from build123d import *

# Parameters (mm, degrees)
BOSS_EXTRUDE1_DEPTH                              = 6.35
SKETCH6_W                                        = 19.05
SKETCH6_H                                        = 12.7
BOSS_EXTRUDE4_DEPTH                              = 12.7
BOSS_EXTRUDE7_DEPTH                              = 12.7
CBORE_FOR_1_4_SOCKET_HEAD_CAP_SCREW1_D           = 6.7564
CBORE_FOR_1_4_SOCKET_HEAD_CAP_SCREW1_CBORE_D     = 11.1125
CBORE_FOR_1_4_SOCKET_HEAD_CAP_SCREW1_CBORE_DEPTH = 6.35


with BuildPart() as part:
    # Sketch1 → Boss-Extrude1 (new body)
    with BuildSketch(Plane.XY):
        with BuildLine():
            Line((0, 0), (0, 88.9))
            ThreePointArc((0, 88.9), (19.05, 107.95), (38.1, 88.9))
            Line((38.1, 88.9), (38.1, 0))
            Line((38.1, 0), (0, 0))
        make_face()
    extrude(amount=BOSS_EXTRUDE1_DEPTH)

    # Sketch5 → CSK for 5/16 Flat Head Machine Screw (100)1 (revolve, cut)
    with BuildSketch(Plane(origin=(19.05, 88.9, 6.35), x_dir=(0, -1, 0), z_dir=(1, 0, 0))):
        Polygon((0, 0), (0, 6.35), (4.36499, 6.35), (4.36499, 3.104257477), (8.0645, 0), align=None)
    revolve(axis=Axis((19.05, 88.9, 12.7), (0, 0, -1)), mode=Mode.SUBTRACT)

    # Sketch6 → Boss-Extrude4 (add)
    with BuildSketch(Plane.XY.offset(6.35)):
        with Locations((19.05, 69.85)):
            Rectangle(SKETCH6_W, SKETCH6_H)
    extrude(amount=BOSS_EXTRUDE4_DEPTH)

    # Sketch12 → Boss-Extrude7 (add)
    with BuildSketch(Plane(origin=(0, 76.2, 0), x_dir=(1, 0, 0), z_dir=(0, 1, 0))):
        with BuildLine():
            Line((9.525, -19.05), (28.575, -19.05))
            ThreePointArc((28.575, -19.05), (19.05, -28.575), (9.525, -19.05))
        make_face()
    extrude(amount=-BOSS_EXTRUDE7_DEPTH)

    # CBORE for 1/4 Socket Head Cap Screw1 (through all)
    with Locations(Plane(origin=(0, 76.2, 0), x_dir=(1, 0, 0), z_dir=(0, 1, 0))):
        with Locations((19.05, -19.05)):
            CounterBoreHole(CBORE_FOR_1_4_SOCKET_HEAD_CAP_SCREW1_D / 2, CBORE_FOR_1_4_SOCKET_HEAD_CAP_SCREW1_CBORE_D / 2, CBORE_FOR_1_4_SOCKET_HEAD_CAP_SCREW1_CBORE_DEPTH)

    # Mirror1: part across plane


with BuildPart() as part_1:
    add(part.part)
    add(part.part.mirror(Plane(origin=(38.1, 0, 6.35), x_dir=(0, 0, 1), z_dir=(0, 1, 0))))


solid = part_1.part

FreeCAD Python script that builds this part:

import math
import FreeCAD as App
import Part
import Sketcher
from FreeCAD import Vector
Q = App.Units.Quantity


def add_polygon(sketch, points):
    """Adds a closed chain of lines whose ends are joined by coincident constraints."""
    first, n = sketch.GeometryCount, len(points)
    for a, b in zip(points, points[1:] + points[:1]):
        sketch.addGeometry(Part.LineSegment(App.Vector(*a, 0), App.Vector(*b, 0)), False)
    for i in range(n):
        sketch.addConstraint(Sketcher.Constraint("Coincident", first + i, 2, first + (i + 1) % n, 1))

doc = App.newDocument("Part")
params = doc.addObject("Spreadsheet::Sheet", "Params")
for row, (alias, value) in enumerate([
    ("sketch1_radius", "0.75 in"),
    ("sketch1_height", "3.5 in"),
    ("pad1_length", "0.25 in"),
    ("sketch2_height", "0.25 in"),
    ("groove_angle", "360 deg"),
    ("sketch3_height", "0.5 in"),
    ("sketch3_width", "0.75 in"),
    ("pad2_length", "0.5 in"),
    ("sketch4_radius", "0.375 in"),
    ("pad3_length", "0.5 in"),
    ("sketch5_diameter", "0.266 in"),
    ("hole_diameter", "0.266 in"),
    ("hole_cbore_diameter", "0.4375 in"),
    ("hole_cbore_depth", "0.25 in"),
], start=1):
    params.set(f"A{row}", alias)
    params.set(f"B{row}", "=" + value)
    params.setAlias(f"B{row}", alias)

body = doc.addObject("PartDesign::Body", "Body")

sketch1 = doc.addObject("Sketcher::SketchObject", "Sketch")
body.addObject(sketch1)
sketch1.AttachmentSupport = (doc.XY_Plane, [""])
sketch1.MapMode = "FlatFace"
sketch1.addGeometry([
    Part.LineSegment(Vector(0, 89, 0), Vector(0, 0, 0)),
    Part.LineSegment(Vector(0, 0, 0), Vector(38, 0, 0)),
    Part.LineSegment(Vector(38, 0, 0), Vector(38, 89, 0)),
    Part.ArcOfCircle(Part.Circle(Vector(19, 89, 0), Vector(0, 0, 1), 19), math.radians(0), math.radians(180)),
], False)
sketch1.addConstraint([
    Sketcher.Constraint("Coincident", 0, 2, 1, 1),
    Sketcher.Constraint("Coincident", 1, 2, 2, 1),
    Sketcher.Constraint("Tangent", 2, 2, 3, 1),
    Sketcher.Constraint("Tangent", 3, 2, 0, 1),
    Sketcher.Constraint("Vertical", 0),
    Sketcher.Constraint("Horizontal", 1),
    Sketcher.Constraint("Vertical", 2),
    Sketcher.Constraint("Coincident", 0, 2, -1, 1),
    Sketcher.Constraint("Radius", 3, Q("0.75 in")),
    Sketcher.Constraint("DistanceY", 0, 2, 0, 1, Q("3.5 in")),
])
sketch1.setExpression("Constraints[8]", "Params.sketch1_radius")
sketch1.setExpression("Constraints[9]", "Params.sketch1_height")
pad1 = doc.addObject("PartDesign::Pad", "Pad")
body.addObject(pad1)
pad1.Profile = sketch1
pad1.setExpression("Length", "Params.pad1_length")

sketch2 = doc.addObject("Sketcher::SketchObject", "Sketch001")
body.addObject(sketch2)
sketch2.AttachmentSupport = (doc.YZ_Plane, [""])
sketch2.MapMode = "FlatFace"
sketch2.AttachmentOffset = App.Placement(Vector(0, 0, 0.75 * 25.4), App.Rotation())
add_polygon(sketch2, [(88.9, 0), (88.9, 6.3), (80.8, 6.3), (84.5, 3.2), (84.5, 0)])
sketch2.addGeometry(Part.LineSegment(Vector(88.9, 6.3, 0), Vector(88.9, 0, 0)), True)
sketch2.addConstraint([
    Sketcher.Constraint("Vertical", 0),
    Sketcher.Constraint("Horizontal", 1),
    Sketcher.Constraint("Vertical", 3),
    Sketcher.Constraint("Horizontal", 4),
    Sketcher.Constraint("Vertical", 5),
    Sketcher.Constraint("Coincident", 5, 1, 0, 2),
    Sketcher.Constraint("PointOnObject", 3, 2, -1),
    Sketcher.Constraint("PointOnObject", 5, 2, -1),
    Sketcher.Constraint("Angle", 2, Q("-40 deg")),
    Sketcher.Constraint("DistanceY", 0, 1, 0, 2, Q("0.25 in")),
    Sketcher.Constraint("DistanceX", -1, 1, 0, 2, Q("3.5 in")),
    Sketcher.Constraint("DistanceX", 1, 2, 1, 1, Q("0.3175 in")),
    Sketcher.Constraint("DistanceX", 4, 1, 4, 2, 4.36499),
])
sketch2.setExpression("Constraints[14]", "Params.sketch2_height")
groove = doc.addObject("PartDesign::Groove", "Groove")
body.addObject(groove)
groove.Profile = sketch2
groove.ReferenceAxis = (sketch2, ["Axis0"])
groove.setExpression("Angle", "Params.groove_angle")

sketch3 = doc.addObject("Sketcher::SketchObject", "Sketch002")
body.addObject(sketch3)
sketch3.AttachmentSupport = (doc.XY_Plane, [""])
sketch3.MapMode = "FlatFace"
sketch3.AttachmentOffset = App.Placement(Vector(0, 0, 0.25 * 25.4), App.Rotation())
add_polygon(sketch3, [(10, 76), (10, 64), (29, 64), (29, 76)])
sketch3.addConstraint([
    Sketcher.Constraint("Vertical", 0),
    Sketcher.Constraint("Horizontal", 1),
    Sketcher.Constraint("Vertical", 2),
    Sketcher.Constraint("Horizontal", 3),
    Sketcher.Constraint("DistanceY", 0, 2, 0, 1, Q("0.5 in")),
    Sketcher.Constraint("DistanceY", -1, 1, 2, 2, Q("3 in")),
    Sketcher.Constraint("DistanceX", 1, 1, 1, 2, Q("0.75 in")),
    Sketcher.Constraint("DistanceX", -1, 1, 0, 2, Q("0.375 in")),
])
sketch3.setExpression("Constraints[8]", "Params.sketch3_height")
sketch3.setExpression("Constraints[10]", "Params.sketch3_width")
pad2 = doc.addObject("PartDesign::Pad", "Pad001")
body.addObject(pad2)
pad2.Profile = sketch3
pad2.setExpression("Length", "Params.pad2_length")

sketch4 = doc.addObject("Sketcher::SketchObject", "Sketch003")
body.addObject(sketch4)
sketch4.AttachmentSupport = (doc.XZ_Plane, [""])
sketch4.MapMode = "FlatFace"
sketch4.AttachmentOffset = App.Placement(Vector(0, 0, -3 * 25.4), App.Rotation())
sketch4.addGeometry([
    Part.LineSegment(Vector(29, 19, 0), Vector(10, 19, 0)),
    Part.ArcOfCircle(Part.Circle(Vector(19, 19, 0), Vector(0, 0, 1), 10), math.radians(0), math.radians(180)),
], False)
sketch4.addConstraint([
    Sketcher.Constraint("Coincident", 0, 1, 1, 1),
    Sketcher.Constraint("Coincident", 1, 2, 0, 2),
    Sketcher.Constraint("Horizontal", 0),
    Sketcher.Constraint("Horizontal", 1, 3, 0, 1),
    Sketcher.Constraint("Radius", 1, Q("0.375 in")),
    Sketcher.Constraint("DistanceX", -1, 1, 1, 3, Q("0.75 in")),
    Sketcher.Constraint("DistanceY", -1, 1, 1, 3, Q("0.75 in")),
])
sketch4.setExpression("Constraints[4]", "Params.sketch4_radius")
pad3 = doc.addObject("PartDesign::Pad", "Pad002")
body.addObject(pad3)
pad3.Profile = sketch4
pad3.setExpression("Length", "Params.pad3_length")

sketch5 = doc.addObject("Sketcher::SketchObject", "Sketch004")
body.addObject(sketch5)
sketch5.AttachmentSupport = (doc.XZ_Plane, [""])
sketch5.MapMode = "FlatFace"
sketch5.AttachmentOffset = App.Placement(Vector(0, 0, -3 * 25.4), App.Rotation())
sketch5.addGeometry(Part.Circle(Vector(19.1, 19.1, 0), Vector(0, 0, 1), 3.4), False)
sketch5.addConstraint([
    Sketcher.Constraint("Diameter", 0, Q("0.266 in")),
    Sketcher.Constraint("DistanceX", -1, 1, 0, 3, Q("0.75 in")),
    Sketcher.Constraint("DistanceY", -1, 1, 0, 3, Q("0.75 in")),
])
sketch5.setExpression("Constraints[0]", "Params.sketch5_diameter")
doc.recompute()
hole = doc.addObject("PartDesign::Hole", "Hole")
body.addObject(hole)
hole.Profile = sketch5
hole.ThreadType = "None"
hole.setExpression("Diameter", "Params.hole_diameter")
hole.DepthType = "ThroughAll"
hole.HoleCutType = "Counterbore"
hole.setExpression("HoleCutDiameter", "Params.hole_cbore_diameter")
hole.setExpression("HoleCutDepth", "Params.hole_cbore_depth")
hole.Reversed = True
body2 = doc.addObject("PartDesign::Body", "Body001")
doc.recompute()

body2.BaseFeature = body
doc.recompute()

mirroring = doc.addObject("Part::Mirroring", "Mirroring")
mirroring.Source = body
mirroring.Base = Vector(38.1, 0, 6.35)
mirroring.Normal = Vector(0, 1, 0)
body3 = doc.addObject("PartDesign::Body", "Body002")
body3.BaseFeature = mirroring
boolean = doc.addObject("PartDesign::Boolean", "Boolean")
body2.addObject(boolean)
boolean.Type = "Fuse"
boolean.addObjects([body3])
doc.recompute()
mirroring.Visibility = False

doc.recompute()
